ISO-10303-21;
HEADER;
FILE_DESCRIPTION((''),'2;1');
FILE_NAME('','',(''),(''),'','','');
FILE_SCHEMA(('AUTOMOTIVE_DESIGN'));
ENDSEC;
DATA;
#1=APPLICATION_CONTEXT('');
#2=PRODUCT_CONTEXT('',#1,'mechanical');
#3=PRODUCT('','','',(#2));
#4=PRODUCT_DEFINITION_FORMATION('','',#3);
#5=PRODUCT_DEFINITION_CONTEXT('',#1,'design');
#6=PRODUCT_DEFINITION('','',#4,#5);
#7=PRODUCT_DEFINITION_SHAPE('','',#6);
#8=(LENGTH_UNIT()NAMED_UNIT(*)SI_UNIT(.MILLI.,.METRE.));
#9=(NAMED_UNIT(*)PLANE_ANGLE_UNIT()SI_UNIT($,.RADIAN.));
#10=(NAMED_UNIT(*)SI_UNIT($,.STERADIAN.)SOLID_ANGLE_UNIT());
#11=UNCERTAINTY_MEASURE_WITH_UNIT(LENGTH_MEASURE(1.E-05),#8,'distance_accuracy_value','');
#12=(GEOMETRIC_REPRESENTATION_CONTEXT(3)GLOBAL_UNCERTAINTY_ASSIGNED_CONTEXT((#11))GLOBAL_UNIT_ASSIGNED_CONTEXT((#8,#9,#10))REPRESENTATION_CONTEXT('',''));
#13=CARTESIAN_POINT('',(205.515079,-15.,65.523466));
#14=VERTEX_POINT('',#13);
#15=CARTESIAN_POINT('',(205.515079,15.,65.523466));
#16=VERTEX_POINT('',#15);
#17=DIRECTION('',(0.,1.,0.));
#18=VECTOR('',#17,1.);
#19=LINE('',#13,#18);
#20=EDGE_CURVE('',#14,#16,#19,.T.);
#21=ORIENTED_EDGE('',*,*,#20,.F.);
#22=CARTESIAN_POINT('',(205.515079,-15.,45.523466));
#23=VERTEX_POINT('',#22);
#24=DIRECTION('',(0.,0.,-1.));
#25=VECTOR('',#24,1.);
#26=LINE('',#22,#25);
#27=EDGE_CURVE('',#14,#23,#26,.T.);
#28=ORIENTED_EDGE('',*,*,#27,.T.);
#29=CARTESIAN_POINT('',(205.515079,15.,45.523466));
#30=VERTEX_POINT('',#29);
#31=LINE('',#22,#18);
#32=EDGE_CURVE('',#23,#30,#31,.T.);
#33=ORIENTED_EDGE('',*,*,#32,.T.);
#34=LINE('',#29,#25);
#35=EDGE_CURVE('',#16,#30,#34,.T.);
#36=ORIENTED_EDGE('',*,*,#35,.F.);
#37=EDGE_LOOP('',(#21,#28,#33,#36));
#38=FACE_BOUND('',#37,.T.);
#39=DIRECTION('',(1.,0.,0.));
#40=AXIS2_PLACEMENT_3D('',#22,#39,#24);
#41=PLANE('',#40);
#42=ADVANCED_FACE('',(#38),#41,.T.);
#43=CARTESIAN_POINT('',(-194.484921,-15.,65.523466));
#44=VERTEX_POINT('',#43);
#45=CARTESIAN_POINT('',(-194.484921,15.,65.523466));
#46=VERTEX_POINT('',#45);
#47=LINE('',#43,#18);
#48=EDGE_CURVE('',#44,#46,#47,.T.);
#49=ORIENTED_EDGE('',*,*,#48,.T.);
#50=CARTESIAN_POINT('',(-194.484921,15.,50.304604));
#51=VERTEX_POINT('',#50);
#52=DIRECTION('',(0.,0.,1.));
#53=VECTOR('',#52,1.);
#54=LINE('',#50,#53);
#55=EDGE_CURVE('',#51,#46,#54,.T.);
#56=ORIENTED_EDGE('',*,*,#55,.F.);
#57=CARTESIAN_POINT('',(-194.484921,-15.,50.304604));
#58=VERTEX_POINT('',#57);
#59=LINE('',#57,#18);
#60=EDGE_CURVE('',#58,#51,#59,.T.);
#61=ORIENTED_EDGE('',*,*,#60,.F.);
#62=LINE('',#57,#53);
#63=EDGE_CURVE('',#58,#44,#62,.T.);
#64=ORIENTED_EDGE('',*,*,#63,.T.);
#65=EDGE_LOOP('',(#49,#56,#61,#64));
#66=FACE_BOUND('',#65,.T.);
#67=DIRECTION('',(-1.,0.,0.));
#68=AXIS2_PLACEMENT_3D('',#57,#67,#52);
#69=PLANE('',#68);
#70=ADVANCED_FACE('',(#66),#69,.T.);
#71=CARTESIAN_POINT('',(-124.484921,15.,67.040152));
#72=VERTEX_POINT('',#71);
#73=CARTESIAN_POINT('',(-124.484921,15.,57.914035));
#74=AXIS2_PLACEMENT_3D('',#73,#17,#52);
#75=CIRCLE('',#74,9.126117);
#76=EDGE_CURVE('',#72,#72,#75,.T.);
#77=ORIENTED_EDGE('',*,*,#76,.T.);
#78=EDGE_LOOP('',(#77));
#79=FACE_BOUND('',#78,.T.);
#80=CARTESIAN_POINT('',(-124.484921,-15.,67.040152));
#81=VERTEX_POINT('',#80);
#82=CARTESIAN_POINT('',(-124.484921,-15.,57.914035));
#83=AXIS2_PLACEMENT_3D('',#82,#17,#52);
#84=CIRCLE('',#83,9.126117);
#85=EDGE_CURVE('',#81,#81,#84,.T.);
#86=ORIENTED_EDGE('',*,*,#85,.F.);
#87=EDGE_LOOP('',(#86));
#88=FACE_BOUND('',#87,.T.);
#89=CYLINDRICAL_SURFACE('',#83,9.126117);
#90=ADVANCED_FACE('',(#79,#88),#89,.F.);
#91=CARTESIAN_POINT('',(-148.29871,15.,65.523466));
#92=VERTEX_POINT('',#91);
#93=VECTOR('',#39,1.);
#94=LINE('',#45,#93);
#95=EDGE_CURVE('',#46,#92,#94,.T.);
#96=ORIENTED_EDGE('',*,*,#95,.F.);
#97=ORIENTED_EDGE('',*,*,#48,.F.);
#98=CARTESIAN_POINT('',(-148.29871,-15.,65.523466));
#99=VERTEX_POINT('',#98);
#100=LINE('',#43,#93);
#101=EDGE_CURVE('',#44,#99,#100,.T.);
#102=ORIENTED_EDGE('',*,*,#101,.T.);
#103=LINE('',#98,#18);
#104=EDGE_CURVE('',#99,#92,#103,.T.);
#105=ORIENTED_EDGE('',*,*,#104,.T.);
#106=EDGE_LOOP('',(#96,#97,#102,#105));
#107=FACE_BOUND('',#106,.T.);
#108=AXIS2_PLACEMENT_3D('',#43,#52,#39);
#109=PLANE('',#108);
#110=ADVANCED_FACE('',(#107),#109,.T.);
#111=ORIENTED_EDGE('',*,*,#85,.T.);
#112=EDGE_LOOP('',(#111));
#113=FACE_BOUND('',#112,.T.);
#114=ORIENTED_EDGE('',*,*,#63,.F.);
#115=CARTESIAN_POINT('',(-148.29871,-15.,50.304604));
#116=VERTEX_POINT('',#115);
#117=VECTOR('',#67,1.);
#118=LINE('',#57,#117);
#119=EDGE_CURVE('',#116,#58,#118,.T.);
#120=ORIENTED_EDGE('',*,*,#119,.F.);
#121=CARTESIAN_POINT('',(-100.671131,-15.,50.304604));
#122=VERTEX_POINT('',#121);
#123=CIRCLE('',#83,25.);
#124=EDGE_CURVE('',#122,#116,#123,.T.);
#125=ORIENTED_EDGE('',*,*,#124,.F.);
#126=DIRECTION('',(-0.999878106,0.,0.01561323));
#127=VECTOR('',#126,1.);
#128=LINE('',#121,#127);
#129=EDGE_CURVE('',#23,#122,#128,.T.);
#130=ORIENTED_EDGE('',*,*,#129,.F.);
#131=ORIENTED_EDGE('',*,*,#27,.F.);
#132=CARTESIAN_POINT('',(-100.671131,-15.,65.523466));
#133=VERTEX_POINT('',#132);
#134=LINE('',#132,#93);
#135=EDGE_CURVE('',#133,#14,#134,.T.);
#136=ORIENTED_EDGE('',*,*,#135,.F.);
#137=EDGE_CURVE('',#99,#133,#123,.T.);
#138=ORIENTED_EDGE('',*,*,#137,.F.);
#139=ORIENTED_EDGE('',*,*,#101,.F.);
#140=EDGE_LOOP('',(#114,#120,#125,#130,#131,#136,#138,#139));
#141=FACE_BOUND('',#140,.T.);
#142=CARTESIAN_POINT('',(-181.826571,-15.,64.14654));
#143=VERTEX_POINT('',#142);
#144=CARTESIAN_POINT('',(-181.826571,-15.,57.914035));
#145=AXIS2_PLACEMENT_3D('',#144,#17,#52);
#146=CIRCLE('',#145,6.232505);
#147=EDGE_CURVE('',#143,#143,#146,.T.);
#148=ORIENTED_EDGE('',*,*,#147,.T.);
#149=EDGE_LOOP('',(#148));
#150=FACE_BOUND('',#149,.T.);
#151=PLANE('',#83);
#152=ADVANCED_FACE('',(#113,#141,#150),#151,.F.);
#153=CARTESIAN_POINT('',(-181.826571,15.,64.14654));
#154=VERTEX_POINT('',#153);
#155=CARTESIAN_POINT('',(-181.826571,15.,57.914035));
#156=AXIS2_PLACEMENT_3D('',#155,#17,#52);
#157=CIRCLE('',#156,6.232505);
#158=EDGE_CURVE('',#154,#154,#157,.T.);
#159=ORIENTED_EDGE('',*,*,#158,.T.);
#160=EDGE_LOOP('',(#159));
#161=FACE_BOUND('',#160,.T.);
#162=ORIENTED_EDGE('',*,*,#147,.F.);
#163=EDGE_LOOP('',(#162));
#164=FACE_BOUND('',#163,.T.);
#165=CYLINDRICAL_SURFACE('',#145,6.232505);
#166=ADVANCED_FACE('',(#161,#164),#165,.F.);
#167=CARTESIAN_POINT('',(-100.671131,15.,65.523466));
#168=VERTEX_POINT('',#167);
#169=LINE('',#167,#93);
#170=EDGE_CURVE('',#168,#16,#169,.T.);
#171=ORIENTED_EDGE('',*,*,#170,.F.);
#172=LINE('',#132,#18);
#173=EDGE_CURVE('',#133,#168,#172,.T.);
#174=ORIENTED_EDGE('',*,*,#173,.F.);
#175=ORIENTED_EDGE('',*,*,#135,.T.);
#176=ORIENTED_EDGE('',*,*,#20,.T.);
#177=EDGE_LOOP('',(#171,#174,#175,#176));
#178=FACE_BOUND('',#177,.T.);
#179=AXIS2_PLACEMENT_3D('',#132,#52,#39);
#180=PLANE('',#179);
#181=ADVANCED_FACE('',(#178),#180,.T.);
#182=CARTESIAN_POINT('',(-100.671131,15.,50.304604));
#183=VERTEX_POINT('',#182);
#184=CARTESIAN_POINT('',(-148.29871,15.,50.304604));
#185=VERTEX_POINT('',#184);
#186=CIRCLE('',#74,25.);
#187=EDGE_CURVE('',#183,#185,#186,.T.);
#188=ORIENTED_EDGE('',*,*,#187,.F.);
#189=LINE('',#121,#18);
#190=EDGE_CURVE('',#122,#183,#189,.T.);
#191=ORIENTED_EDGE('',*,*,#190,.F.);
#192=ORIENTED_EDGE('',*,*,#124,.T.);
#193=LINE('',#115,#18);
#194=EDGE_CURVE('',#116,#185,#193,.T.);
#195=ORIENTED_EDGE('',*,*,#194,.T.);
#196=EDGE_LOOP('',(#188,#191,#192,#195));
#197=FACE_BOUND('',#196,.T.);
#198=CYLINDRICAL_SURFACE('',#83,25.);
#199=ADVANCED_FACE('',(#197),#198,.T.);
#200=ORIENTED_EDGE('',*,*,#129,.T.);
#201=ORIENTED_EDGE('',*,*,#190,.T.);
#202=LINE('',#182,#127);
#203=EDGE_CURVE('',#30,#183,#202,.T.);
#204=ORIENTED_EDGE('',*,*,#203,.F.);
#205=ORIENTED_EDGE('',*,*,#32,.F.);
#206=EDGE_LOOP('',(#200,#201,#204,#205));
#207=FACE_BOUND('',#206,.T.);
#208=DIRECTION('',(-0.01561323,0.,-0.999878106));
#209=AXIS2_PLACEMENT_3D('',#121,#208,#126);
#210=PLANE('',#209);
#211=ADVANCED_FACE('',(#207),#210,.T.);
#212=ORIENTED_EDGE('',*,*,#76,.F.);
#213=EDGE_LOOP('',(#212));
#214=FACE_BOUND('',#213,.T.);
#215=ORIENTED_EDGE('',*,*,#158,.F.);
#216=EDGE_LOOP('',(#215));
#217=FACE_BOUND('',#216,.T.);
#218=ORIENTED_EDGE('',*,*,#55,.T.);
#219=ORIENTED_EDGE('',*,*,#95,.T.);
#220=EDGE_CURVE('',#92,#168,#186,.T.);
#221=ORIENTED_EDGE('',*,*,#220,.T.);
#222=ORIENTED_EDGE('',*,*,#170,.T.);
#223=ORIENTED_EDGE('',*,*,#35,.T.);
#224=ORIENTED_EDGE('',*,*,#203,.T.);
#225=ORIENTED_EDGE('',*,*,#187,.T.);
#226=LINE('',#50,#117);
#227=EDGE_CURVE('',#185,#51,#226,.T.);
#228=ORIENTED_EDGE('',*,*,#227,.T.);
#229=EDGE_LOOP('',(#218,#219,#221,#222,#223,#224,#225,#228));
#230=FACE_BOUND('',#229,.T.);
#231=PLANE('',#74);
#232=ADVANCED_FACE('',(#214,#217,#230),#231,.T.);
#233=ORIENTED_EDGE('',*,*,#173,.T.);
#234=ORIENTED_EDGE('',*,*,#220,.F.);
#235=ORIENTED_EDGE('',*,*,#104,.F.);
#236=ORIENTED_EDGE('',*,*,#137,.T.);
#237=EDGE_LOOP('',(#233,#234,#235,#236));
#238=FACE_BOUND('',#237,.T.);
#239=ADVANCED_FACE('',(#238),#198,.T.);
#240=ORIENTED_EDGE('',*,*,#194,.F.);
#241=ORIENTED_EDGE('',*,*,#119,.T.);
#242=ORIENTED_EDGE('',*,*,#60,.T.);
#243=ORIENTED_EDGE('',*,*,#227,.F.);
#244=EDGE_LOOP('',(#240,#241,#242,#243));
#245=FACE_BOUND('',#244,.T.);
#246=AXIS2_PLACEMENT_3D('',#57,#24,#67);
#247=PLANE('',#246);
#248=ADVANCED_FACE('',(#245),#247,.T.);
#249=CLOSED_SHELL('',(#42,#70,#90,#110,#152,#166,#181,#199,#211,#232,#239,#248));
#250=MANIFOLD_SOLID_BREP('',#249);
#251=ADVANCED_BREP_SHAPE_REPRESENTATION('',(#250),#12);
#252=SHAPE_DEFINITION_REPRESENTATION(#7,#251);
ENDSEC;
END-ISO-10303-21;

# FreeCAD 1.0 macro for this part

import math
import FreeCAD as App
import Part
import Sketcher

V = App.Vector
Q = App.Units.Quantity

doc = App.newDocument("Part")
body = doc.addObject("PartDesign::Body", "Body")

sketch1 = doc.addObject("Sketcher::SketchObject", "Sketch")
body.addObject(sketch1)
sketch1.AttachmentSupport = (doc.XZ_Plane, [""])
sketch1.MapMode = "FlatFace"
sketch1.addGeometry([
    Part.LineSegment(V(-148, 50, 0), V(-194, 50, 0)),
    Part.LineSegment(V(-194, 50, 0), V(-194, 66, 0)),
    Part.LineSegment(V(-194, 66, 0), V(-148, 66, 0)),
    Part.ArcOfCircle(Part.Circle(V(-124, 58, 0), V(0, 0, 1), 25), math.radians(18), math.radians(162)),
    Part.LineSegment(V(-101, 66, 0), V(206, 66, 0)),
    Part.LineSegment(V(206, 66, 0), V(206, 46, 0)),
    Part.LineSegment(V(206, 46, 0), V(-101, 50, 0)),
    Part.ArcOfCircle(Part.Circle(V(-124, 58, 0), V(0, 0, 1), 25), math.radians(-162), math.radians(-18)),
    Part.Circle(V(-124, 58, 0), V(0, 0, 1), 9),
    Part.Circle(V(-182, 58, 0), V(0, 0, 1), 6),
], False)
sketch1.addConstraint([
    Sketcher.Constraint("Coincident", 0, 2, 1, 1),
    Sketcher.Constraint("Coincident", 1, 2, 2, 1),
    Sketcher.Constraint("Coincident", 2, 2, 3, 2),
    Sketcher.Constraint("Coincident", 3, 1, 4, 1),
    Sketcher.Constraint("Coincident", 4, 2, 5, 1),
    Sketcher.Constraint("Coincident", 5, 2, 6, 1),
    Sketcher.Constraint("Coincident", 6, 2, 7, 2),
    Sketcher.Constraint("Coincident", 7, 1, 0, 1),
    Sketcher.Constraint("Horizontal", 0),
    Sketcher.Constraint("Vertical", 1),
    Sketcher.Constraint("Horizontal", 2),
    Sketcher.Constraint("Horizontal", 4),
    Sketcher.Constraint("Vertical", 5),
    Sketcher.Constraint("Coincident", 7, 3, 3, 3),
    Sketcher.Constraint("Coincident", 8, 3, 3, 3),
    Sketcher.Constraint("Equal", 3, 7),
    Sketcher.Constraint("Horizontal", 8, 3, 9, 3),
    Sketcher.Constraint("Horizontal", 2, 2, 3, 1),
    Sketcher.Constraint("Horizontal", 0, 2, 6, 2),
    Sketcher.Constraint("Vertical", 3, 1, 6, 2),
    Sketcher.Constraint("Radius", 3, Q("25 mm")),
    Sketcher.Constraint("DistanceY", 5, 2, 5, 1, Q("20 mm")),
    Sketcher.Constraint("DistanceX", 0, 2, 3, 3, Q("70 mm")),
    Sketcher.Constraint("DistanceX", 8, 3, 4, 2, Q("330 mm")),
    Sketcher.Constraint("Diameter", 9, Q("12.465011 mm")),
    Sketcher.Constraint("Diameter", 8, Q("18.252233 mm")),
    Sketcher.Constraint("DistanceX", 0, 2, 0, 1, Q("46.186211 mm")),
    Sketcher.Constraint("DistanceX", 3, 3, -1, 1, Q("124.484921 mm")),
    Sketcher.Constraint("DistanceX", 9, 3, -1, 1, Q("181.826571 mm")),
    Sketcher.Constraint("DistanceY", -1, 1, 3, 3, Q("57.914035 mm")),
])
pad1 = doc.addObject("PartDesign::Pad", "Pad")
body.addObject(pad1)
pad1.Profile = sketch1
pad1.Type = "TwoLengths"
pad1.Length = 15
pad1.Length2 = 15
pad1.Reversed = True

doc.recompute()
